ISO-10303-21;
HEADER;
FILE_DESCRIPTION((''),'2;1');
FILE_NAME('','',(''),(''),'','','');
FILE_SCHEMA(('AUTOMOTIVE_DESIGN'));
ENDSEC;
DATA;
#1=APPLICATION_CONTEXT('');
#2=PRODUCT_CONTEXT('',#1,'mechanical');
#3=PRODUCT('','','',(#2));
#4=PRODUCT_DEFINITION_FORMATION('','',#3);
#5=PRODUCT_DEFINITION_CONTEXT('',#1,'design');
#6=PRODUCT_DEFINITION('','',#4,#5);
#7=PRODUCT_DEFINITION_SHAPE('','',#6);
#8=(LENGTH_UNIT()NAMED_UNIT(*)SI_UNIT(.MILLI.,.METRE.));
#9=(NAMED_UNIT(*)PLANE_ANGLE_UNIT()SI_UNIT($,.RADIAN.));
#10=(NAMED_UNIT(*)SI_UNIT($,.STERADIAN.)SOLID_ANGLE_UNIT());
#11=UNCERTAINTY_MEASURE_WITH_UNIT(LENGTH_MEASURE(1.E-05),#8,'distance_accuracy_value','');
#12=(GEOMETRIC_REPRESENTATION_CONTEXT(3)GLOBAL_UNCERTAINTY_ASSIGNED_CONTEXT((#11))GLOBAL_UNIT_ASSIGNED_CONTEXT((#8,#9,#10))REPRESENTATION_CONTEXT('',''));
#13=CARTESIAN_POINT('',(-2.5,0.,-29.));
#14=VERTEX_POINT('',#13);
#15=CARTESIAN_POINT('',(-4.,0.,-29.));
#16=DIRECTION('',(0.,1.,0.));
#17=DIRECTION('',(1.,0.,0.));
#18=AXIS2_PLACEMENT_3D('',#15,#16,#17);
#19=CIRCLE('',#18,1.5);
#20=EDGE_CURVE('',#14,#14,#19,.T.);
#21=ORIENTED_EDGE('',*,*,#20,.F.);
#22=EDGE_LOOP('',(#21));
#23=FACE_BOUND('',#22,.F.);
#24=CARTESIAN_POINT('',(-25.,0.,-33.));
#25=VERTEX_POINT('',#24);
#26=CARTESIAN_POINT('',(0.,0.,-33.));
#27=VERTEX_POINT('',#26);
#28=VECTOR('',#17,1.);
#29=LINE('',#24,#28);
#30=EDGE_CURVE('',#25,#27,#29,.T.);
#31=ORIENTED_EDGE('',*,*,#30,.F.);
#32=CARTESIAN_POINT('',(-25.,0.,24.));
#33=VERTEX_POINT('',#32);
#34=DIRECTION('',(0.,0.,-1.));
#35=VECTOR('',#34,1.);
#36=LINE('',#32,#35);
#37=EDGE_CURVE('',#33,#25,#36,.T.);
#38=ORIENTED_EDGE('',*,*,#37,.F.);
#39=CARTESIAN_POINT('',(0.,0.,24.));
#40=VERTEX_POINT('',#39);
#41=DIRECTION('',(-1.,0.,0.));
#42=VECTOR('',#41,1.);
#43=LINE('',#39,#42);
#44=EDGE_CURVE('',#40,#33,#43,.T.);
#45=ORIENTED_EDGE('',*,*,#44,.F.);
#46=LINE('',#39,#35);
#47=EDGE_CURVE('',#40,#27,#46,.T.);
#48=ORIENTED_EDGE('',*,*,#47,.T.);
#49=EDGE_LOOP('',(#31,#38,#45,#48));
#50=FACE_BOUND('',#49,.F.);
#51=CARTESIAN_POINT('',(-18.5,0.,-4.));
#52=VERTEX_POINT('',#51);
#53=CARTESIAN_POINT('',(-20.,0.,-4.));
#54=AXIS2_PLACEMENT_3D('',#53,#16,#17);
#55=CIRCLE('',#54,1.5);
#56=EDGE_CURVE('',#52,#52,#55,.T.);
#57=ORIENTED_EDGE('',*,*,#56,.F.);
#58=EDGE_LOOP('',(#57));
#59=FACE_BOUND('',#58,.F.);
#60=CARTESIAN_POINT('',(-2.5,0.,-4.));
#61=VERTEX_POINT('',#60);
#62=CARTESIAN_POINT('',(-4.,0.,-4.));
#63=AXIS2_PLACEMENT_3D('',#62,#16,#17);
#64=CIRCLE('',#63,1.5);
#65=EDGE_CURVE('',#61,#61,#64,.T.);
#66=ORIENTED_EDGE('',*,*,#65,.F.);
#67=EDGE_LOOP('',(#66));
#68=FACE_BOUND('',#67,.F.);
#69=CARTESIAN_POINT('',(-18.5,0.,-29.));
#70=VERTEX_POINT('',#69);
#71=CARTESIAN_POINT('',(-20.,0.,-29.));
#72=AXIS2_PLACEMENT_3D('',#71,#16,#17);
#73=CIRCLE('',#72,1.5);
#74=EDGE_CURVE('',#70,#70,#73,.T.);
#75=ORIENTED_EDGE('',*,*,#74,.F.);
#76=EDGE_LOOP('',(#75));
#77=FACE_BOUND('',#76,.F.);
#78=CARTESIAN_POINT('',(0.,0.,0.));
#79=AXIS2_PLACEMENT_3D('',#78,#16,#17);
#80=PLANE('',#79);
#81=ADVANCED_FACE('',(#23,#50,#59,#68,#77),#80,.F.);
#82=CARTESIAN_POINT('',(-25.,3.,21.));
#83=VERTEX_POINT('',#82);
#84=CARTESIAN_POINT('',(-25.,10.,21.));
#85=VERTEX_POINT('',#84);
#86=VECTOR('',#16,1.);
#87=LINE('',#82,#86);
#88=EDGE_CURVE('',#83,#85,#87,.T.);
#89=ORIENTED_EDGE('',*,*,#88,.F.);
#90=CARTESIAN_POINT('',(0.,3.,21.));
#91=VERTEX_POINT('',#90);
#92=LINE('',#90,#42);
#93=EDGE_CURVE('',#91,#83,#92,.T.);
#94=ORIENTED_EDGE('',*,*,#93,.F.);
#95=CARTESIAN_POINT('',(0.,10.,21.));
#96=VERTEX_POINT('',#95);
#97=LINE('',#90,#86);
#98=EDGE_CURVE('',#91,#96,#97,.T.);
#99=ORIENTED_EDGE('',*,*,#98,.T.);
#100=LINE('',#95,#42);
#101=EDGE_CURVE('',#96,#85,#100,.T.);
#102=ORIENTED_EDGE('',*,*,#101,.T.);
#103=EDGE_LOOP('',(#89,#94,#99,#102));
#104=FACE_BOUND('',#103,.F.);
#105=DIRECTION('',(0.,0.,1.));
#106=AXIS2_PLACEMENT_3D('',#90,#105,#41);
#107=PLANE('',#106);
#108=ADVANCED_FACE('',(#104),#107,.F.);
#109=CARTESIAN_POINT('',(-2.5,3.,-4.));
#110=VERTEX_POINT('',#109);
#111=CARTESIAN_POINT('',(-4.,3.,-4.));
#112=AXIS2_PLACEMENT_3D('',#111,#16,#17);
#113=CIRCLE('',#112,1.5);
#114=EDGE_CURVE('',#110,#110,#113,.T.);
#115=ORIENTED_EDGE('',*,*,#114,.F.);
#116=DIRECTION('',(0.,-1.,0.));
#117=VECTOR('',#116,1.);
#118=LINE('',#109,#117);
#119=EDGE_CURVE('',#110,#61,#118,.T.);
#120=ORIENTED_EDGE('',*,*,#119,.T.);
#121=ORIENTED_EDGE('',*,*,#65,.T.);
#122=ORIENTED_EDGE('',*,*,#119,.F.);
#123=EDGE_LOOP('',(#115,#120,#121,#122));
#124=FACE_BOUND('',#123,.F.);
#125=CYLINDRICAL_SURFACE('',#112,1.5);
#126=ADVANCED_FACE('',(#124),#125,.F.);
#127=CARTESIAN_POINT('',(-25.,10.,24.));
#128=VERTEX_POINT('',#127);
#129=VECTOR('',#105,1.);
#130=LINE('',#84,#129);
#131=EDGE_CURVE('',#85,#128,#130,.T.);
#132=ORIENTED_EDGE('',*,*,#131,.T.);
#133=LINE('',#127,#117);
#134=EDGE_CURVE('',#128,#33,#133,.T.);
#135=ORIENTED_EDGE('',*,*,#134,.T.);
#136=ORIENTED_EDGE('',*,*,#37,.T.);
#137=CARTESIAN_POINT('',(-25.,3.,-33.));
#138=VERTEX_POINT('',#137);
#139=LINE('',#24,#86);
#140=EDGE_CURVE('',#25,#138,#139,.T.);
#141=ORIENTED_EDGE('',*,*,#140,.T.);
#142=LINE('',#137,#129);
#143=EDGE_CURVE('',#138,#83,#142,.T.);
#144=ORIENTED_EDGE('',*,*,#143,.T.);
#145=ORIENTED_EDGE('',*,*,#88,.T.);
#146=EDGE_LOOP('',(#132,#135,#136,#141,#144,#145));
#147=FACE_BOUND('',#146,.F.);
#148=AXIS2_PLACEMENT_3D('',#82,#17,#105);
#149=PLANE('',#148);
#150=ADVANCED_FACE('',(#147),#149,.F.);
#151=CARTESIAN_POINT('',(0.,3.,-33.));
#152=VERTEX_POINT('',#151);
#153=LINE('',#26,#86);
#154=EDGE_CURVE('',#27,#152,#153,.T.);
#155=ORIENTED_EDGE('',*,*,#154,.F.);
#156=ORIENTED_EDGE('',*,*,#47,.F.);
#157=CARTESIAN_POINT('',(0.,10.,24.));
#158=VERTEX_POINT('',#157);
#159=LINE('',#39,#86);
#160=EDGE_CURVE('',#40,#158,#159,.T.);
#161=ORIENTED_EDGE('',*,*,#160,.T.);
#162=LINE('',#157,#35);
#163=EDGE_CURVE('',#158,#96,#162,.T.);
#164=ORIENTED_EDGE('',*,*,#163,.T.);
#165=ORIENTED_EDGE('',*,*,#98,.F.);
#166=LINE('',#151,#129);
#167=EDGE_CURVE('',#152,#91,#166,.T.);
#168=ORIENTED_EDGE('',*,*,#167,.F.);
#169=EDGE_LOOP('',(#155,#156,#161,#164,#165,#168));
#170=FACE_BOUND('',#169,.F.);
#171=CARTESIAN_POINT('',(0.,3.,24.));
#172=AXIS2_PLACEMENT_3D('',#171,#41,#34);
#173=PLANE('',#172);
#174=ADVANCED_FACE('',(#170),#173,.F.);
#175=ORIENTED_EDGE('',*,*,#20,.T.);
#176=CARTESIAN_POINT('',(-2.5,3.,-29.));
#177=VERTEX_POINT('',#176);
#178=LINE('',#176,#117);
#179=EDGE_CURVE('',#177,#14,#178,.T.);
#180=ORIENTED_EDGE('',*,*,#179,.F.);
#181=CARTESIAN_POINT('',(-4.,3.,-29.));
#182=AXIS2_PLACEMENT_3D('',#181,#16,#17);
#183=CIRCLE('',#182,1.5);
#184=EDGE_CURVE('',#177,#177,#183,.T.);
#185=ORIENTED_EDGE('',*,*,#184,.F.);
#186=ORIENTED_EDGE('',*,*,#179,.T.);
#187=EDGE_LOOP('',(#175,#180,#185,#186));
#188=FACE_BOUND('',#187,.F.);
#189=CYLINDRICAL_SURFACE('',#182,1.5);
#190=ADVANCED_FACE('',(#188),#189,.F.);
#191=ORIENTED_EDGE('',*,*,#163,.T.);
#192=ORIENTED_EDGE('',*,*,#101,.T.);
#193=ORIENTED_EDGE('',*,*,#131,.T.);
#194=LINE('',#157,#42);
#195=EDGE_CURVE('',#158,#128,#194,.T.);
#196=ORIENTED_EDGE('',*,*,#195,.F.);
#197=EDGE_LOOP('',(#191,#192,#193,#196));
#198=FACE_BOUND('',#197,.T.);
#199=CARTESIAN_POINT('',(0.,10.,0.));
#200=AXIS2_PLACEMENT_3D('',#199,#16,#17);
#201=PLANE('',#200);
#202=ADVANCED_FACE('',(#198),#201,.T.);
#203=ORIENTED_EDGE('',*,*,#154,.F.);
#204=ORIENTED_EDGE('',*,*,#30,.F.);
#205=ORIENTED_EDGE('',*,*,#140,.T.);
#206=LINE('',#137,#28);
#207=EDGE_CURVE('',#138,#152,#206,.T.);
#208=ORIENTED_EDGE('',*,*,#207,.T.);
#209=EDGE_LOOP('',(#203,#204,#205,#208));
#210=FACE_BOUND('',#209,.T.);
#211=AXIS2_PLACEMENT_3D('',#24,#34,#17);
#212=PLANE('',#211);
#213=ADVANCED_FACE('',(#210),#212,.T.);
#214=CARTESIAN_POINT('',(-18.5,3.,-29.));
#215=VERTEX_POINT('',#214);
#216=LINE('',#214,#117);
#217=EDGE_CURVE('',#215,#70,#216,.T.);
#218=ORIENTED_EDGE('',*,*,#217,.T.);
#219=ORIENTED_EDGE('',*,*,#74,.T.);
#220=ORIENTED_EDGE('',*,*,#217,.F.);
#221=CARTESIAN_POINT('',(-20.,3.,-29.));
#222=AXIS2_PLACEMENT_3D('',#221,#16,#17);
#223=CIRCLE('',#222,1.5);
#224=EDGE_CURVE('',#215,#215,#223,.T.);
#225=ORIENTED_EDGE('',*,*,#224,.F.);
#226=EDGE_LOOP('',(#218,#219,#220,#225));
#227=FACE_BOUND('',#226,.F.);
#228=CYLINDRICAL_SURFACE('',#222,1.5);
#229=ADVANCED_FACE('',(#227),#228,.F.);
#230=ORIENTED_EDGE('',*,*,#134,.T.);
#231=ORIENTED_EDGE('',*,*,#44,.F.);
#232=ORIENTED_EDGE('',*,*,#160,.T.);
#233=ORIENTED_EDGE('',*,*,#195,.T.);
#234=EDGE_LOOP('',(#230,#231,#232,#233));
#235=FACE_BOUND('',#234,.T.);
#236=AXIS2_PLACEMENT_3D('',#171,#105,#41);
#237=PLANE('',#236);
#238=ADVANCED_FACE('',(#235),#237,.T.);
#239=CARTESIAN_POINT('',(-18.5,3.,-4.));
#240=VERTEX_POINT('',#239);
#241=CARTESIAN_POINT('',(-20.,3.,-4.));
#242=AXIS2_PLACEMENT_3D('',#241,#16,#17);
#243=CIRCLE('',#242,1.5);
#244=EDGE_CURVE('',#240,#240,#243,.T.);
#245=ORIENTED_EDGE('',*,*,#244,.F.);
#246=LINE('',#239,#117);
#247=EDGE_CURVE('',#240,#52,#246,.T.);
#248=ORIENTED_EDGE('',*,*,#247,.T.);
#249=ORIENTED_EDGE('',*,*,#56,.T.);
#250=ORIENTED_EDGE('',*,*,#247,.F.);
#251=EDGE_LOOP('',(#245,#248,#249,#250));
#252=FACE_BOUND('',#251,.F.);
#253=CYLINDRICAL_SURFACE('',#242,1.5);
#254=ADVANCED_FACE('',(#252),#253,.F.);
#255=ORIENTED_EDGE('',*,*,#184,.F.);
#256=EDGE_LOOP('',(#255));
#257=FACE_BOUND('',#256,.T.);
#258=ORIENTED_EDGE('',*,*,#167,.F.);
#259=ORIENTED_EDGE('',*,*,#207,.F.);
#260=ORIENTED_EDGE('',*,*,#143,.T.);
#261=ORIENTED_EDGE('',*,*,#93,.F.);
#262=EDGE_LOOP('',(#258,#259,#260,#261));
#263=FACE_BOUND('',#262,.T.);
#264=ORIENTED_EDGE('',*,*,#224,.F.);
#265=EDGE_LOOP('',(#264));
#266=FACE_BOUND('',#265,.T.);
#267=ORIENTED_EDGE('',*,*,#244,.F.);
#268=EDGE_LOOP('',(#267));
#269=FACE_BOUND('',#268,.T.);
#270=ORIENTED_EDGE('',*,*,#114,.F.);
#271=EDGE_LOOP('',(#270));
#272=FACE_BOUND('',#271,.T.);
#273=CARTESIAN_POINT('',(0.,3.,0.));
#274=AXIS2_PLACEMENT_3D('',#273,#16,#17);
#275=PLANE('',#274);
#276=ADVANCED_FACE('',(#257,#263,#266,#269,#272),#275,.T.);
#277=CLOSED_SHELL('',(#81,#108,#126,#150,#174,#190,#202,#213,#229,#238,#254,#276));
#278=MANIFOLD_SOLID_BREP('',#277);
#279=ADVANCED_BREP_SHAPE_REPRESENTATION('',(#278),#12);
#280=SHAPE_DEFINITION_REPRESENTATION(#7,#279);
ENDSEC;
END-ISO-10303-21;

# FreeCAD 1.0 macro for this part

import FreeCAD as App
import Part
import Sketcher


def add_polygon(sketch, points):
    """Adds a closed chain of lines whose ends are joined by coincident constraints."""
    first, n = sketch.GeometryCount, len(points)
    for a, b in zip(points, points[1:] + points[:1]):
        sketch.addGeometry(Part.LineSegment(App.Vector(*a, 0), App.Vector(*b, 0)), False)
    for i in range(n):
        sketch.addConstraint(Sketcher.Constraint("Coincident", first + i, 2, first + (i + 1) % n, 1))

doc = App.newDocument("Part")
body = doc.addObject("PartDesign::Body", "Body")

# Sketch on XZ plane
sketch1 = body.newObject("Sketcher::SketchObject", "Sketch")
sketch1.AttachmentSupport = (doc.getObject("XZ_Plane"), [""])
sketch1.MapMode = "FlatFace"
add_polygon(sketch1, [(-25, 0), (0, 0), (0, -33), (-25, -33)])  # lines 0-3
sketch1.addConstraint([
    Sketcher.Constraint("Horizontal", 0),
    Sketcher.Constraint("Vertical", 1),
    Sketcher.Constraint("Horizontal", 2),
    Sketcher.Constraint("Vertical", 3),
    Sketcher.Constraint("Coincident", 0, 2, -1, 1),
    Sketcher.Constraint("DistanceX", 0, 1, 0, 2, 25.0),
    Sketcher.Constraint("DistanceY", 1, 2, 1, 1, 33.0),
])
pad1 = body.newObject("PartDesign::Pad", "Pad")
pad1.Profile = sketch1
pad1.Length = 3
pad1.Reversed = True

# Sketch on XZ plane
sketch2 = body.newObject("Sketcher::SketchObject", "Sketch001")
sketch2.AttachmentSupport = (doc.getObject("XZ_Plane"), [""])
sketch2.MapMode = "FlatFace"
sketch2.AttachmentOffset = App.Placement(App.Vector(0, 0, -3), App.Rotation())
sketch2.addGeometry([
    Part.Circle(App.Vector(-4, -4, 0), App.Vector(0, 0, 1), 1.5),
    Part.Circle(App.Vector(-4, -29, 0), App.Vector(0, 0, 1), 1.5),
    Part.Circle(App.Vector(-20, -4, 0), App.Vector(0, 0, 1), 1.5),
    Part.Circle(App.Vector(-20, -29, 0), App.Vector(0, 0, 1), 1.5),
], False)
sketch2.addConstraint([
    Sketcher.Constraint("Equal", 0, 1),
    Sketcher.Constraint("Equal", 1, 2),
    Sketcher.Constraint("Equal", 2, 3),
    Sketcher.Constraint("Horizontal", 0, 3, 2, 3),
    Sketcher.Constraint("Horizontal", 1, 3, 3, 3),
    Sketcher.Constraint("Vertical", 0, 3, 1, 3),
    Sketcher.Constraint("Vertical", 2, 3, 3, 3),
    Sketcher.Constraint("Diameter", 0, 3.0),
    Sketcher.Constraint("DistanceX", 0, 3, -1, 1, 4.0),
    Sketcher.Constraint("DistanceY", 0, 3, -1, 1, 4.0),
    Sketcher.Constraint("DistanceY", 1, 3, 0, 3, 25.0),
    Sketcher.Constraint("DistanceX", 2, 3, 0, 3, 16.0),
])
pocket1 = body.newObject("PartDesign::Pocket", "Pocket")
pocket1.Profile = sketch2
pocket1.Length = 3
pocket1.Reversed = True

# Sketch on XZ plane
sketch3 = body.newObject("Sketcher::SketchObject", "Sketch002")
sketch3.AttachmentSupport = (doc.getObject("XZ_Plane"), [""])
sketch3.MapMode = "FlatFace"
sketch3.AttachmentOffset = App.Placement(App.Vector(0, 0, -3), App.Rotation())
add_polygon(sketch3, [(0, 0), (-25, 0), (-25, 24), (0, 24)])  # lines 0-3
sketch3.addConstraint([
    Sketcher.Constraint("Horizontal", 0),
    Sketcher.Constraint("Vertical", 1),
    Sketcher.Constraint("Horizontal", 2),
    Sketcher.Constraint("Vertical", 3),
    Sketcher.Constraint("Coincident", 3, 2, -1, 1),
    Sketcher.Constraint("DistanceY", 1, 1, 1, 2, 24.0),
    Sketcher.Constraint("DistanceX", 0, 2, 0, 1, 25.0),
])
pad2 = body.newObject("PartDesign::Pad", "Pad001")
pad2.Profile = sketch3
pad2.Length = 3

# Sketch on XZ plane
sketch4 = body.newObject("Sketcher::SketchObject", "Sketch003")
sketch4.AttachmentSupport = (doc.getObject("XZ_Plane"), [""])
sketch4.MapMode = "FlatFace"
sketch4.AttachmentOffset = App.Placement(App.Vector(0, 0, -3), App.Rotation())
add_polygon(sketch4, [(-25, 24), (0, 24), (0, 21), (-25, 21)])  # lines 0-3
sketch4.addConstraint([
    Sketcher.Constraint("Horizontal", 0),
    Sketcher.Constraint("Vertical", 1),
    Sketcher.Constraint("Horizontal", 2),
    Sketcher.Constraint("Vertical", 3),
    Sketcher.Constraint("PointOnObject", 0, 2, -2),
    Sketcher.Constraint("DistanceX", 0, 1, 0, 2, 25.0),
    Sketcher.Constraint("DistanceY", 1, 2, 1, 1, 3.0),
    Sketcher.Constraint("DistanceY", -1, 1, 0, 2, 24.0),
])
pad3 = body.newObject("PartDesign::Pad", "Pad002")
pad3.Profile = sketch4
pad3.Length = 7
pad3.Reversed = True

doc.recompute()
